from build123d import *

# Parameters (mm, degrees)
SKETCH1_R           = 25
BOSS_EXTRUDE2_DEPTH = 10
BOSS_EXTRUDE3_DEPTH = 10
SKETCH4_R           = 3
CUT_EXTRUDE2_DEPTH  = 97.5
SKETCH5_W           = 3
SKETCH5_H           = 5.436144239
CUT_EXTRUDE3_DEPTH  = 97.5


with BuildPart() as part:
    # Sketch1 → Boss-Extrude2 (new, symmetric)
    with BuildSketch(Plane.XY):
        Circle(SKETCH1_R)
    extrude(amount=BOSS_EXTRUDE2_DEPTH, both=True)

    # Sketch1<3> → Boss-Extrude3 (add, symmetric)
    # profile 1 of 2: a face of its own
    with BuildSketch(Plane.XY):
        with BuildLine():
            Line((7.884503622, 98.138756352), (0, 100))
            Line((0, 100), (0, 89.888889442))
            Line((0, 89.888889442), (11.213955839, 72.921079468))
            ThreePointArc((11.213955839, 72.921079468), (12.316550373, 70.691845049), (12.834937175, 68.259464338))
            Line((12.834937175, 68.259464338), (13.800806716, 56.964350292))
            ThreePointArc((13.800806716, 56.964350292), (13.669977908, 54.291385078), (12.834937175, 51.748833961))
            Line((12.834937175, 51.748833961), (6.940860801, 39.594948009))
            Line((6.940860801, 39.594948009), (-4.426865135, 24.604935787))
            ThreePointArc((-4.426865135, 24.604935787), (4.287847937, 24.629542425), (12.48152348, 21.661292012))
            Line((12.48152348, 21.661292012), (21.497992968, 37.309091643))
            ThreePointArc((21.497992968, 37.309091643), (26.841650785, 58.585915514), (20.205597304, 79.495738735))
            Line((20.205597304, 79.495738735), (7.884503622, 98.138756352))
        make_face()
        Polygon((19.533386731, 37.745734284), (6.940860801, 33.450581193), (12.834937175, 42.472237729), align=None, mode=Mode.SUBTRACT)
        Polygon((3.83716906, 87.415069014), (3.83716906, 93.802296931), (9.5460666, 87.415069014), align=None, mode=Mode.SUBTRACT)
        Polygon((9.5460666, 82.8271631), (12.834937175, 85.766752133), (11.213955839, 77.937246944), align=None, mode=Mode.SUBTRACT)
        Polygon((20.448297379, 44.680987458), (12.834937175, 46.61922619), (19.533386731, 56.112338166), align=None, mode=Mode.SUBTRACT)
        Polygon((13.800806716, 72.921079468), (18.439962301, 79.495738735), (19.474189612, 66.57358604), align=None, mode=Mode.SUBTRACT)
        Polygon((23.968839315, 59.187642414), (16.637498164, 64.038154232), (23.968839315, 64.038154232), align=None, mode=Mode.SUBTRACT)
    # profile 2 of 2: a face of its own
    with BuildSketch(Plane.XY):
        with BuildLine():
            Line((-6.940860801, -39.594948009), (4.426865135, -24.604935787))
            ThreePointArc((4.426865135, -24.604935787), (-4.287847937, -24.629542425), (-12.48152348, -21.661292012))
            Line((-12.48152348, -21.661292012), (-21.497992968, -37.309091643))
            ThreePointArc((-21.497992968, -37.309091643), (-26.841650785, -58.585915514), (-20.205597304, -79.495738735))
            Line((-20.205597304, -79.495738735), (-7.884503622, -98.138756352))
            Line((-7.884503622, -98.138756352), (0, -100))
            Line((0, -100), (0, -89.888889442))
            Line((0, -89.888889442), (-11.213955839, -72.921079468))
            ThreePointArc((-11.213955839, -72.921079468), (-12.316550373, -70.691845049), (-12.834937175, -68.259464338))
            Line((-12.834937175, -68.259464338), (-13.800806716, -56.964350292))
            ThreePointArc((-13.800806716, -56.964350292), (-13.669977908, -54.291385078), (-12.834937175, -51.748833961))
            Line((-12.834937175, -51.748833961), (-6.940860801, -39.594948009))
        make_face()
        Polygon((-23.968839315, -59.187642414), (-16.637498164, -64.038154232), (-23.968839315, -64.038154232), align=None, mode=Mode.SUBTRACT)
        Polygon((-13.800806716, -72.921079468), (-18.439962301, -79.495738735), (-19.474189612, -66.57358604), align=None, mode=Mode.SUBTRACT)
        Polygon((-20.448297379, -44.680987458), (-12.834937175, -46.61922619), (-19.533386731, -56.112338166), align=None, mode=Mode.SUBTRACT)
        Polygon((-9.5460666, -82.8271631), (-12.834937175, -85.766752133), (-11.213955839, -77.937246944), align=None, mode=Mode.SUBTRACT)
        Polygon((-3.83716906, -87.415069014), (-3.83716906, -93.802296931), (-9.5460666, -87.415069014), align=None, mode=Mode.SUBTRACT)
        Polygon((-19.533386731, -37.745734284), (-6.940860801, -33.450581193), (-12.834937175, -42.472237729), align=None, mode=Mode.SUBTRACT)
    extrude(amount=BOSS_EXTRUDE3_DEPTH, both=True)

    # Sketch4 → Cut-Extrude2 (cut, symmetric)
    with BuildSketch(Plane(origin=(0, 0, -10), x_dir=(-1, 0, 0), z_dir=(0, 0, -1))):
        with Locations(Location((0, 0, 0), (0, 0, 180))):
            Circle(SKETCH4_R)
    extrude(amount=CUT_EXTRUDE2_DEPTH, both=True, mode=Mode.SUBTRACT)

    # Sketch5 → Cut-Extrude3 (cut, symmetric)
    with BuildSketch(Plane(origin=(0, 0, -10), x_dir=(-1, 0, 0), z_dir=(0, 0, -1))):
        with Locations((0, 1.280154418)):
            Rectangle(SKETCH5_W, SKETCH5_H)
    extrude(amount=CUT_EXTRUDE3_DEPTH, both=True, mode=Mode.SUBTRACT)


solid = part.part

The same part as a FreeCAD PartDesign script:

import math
import FreeCAD as App
import Part
import Sketcher

V = App.Vector


def add_polygon(sketch, points):
    """Adds a closed chain of lines whose ends are joined by coincident constraints."""
    first, n = sketch.GeometryCount, len(points)
    for a, b in zip(points, points[1:] + points[:1]):
        sketch.addGeometry(Part.LineSegment(App.Vector(*a, 0), App.Vector(*b, 0)), False)
    for i in range(n):
        sketch.addConstraint(Sketcher.Constraint("Coincident", first + i, 2, first + (i + 1) % n, 1))

doc = App.newDocument("Part")
params = doc.addObject("Spreadsheet::Sheet", "Params")
for row, (alias, value) in enumerate([
    ("sketch1_diameter", "50 mm"),
    ("pad1_length", "20 mm"),
    ("sketch2_radius", "10 mm"),
    ("sketch2_radius2", "25 mm"),
    ("pad2_length", "20 mm"),
    ("sketch3_diameter", "6 mm"),
    ("pocket1_length", "195 mm"),
    ("sketch4_width", "3 mm"),
    ("pocket2_length", "195 mm"),
], start=1):
    params.set(f"A{row}", alias)
    params.set(f"B{row}", "=" + value)
    params.setAlias(f"B{row}", alias)

body = doc.addObject("PartDesign::Body", "Body")

sketch1 = doc.addObject("Sketcher::SketchObject", "Sketch")
body.addObject(sketch1)
sketch1.AttachmentSupport = (doc.XY_Plane, [""])
sketch1.MapMode = "FlatFace"
sketch1.addGeometry(Part.Circle(V(0, 0, 0), V(0, 0, 1), 25), False)
sketch1.addConstraint([
    Sketcher.Constraint("Coincident", 0, 3, -1, 1),
    Sketcher.Constraint("Diameter", 0, 50.0),
])
sketch1.setExpression("Constraints[1]", "Params.sketch1_diameter")
pad1 = doc.addObject("PartDesign::Pad", "Pad")
body.addObject(pad1)
pad1.Profile = sketch1
pad1.setExpression("Length", "Params.pad1_length")
pad1.Midplane = True

sketch2 = doc.addObject("Sketcher::SketchObject", "Sketch001")
body.addObject(sketch2)
sketch2.AttachmentSupport = (doc.XY_Plane, [""])
sketch2.MapMode = "FlatFace"
sketch2.addGeometry(Part.LineSegment(V(7.9, 98.1, 0), V(0, 100, 0)), False)
sketch2.addGeometry(Part.LineSegment(V(0, 100, 0), V(0, 89.9, 0)), False)
sketch2.addGeometry(Part.LineSegment(V(0, 89.9, 0), V(11.2, 72.9, 0)), False)
sketch2.addGeometry(Part.ArcOfCircle(Part.Circle(V(2.9, 67.4, 0), V(0, 0, 1), 10), math.radians(5), math.radians(33)), False)
sketch2.addGeometry(Part.LineSegment(V(12.8, 68.3, 0), V(13.8, 57, 0)), False)
sketch2.addGeometry(Part.ArcOfCircle(Part.Circle(V(3.8, 56.1, 0), V(0, 0, 1), 10), math.radians(-26), math.radians(5)), False)
sketch2.addGeometry(Part.LineSegment(V(12.8, 51.7, 0), V(6.9, 39.6, 0)), False)
sketch2.addGeometry(Part.LineSegment(V(6.9, 39.6, 0), V(-4.4, 24.6, 0)), False)
sketch2.addGeometry(Part.ArcOfCircle(Part.Circle(V(0, 0, 0), V(0, 0, 1), 25), math.radians(60), math.radians(100)), False)
sketch2.addGeometry(Part.LineSegment(V(12.5, 21.7, 0), V(21.5, 37.3, 0)), False)
sketch2.addGeometry(Part.ArcOfCircle(Part.Circle(V(-13.3, 57.4, 0), V(0, 0, 1), 40.2), math.radians(-30), math.radians(33)), False)
sketch2.addGeometry(Part.LineSegment(V(20.2, 79.5, 0), V(7.9, 98.1, 0)), False)
add_polygon(sketch2, [(12.8, 42.5), (19.5, 37.7), (6.9, 33.5)])
add_polygon(sketch2, [(19.5, 56.1), (20.4, 44.7), (12.8, 46.6)])
add_polygon(sketch2, [(24, 64), (24, 59.2), (16.6, 64)])
add_polygon(sketch2, [(9.5, 87.4), (3.8, 87.4), (3.8, 93.8)])
add_polygon(sketch2, [(11.2, 77.9), (9.5, 82.8), (12.8, 85.8)])
add_polygon(sketch2, [(19.5, 66.6), (13.8, 72.9), (18.4, 79.5)])
sketch2.addGeometry(Part.LineSegment(V(-6.9, -39.6, 0), V(4.4, -24.6, 0)), False)
sketch2.addGeometry(Part.ArcOfCircle(Part.Circle(V(0, 0, 0), V(0, 0, 1), 25), math.radians(-120), math.radians(-80)), False)
sketch2.addGeometry(Part.LineSegment(V(-12.5, -21.7, 0), V(-21.5, -37.3, 0)), False)
sketch2.addGeometry(Part.ArcOfCircle(Part.Circle(V(13.3, -57.4, 0), V(0, 0, 1), 40.2), math.radians(150), math.radians(213)), False)
sketch2.addGeometry(Part.LineSegment(V(-20.2, -79.5, 0), V(-7.9, -98.1, 0)), False)
sketch2.addGeometry(Part.LineSegment(V(-7.9, -98.1, 0), V(0, -100, 0)), False)
sketch2.addGeometry(Part.LineSegment(V(0, -100, 0), V(0, -89.9, 0)), False)
sketch2.addGeometry(Part.LineSegment(V(0, -89.9, 0), V(-11.2, -72.9, 0)), False)
sketch2.addGeometry(Part.ArcOfCircle(Part.Circle(V(-2.9, -67.4, 0), V(0, 0, 1), 10), math.radians(-175), math.radians(-147)), False)
sketch2.addGeometry(Part.LineSegment(V(-12.8, -68.3, 0), V(-13.8, -57, 0)), False)
sketch2.addGeometry(Part.ArcOfCircle(Part.Circle(V(-3.8, -56.1, 0), V(0, 0, 1), 10), math.radians(154), math.radians(185)), False)
sketch2.addGeometry(Part.LineSegment(V(-12.8, -51.7, 0), V(-6.9, -39.6, 0)), False)
add_polygon(sketch2, [(-19.5, -66.6), (-13.8, -72.9), (-18.4, -79.5)])
add_polygon(sketch2, [(-11.2, -77.9), (-9.5, -82.8), (-12.8, -85.8)])
add_polygon(sketch2, [(-9.5, -87.4), (-3.8, -87.4), (-3.8, -93.8)])
add_polygon(sketch2, [(-24, -64), (-24, -59.2), (-16.6, -64)])
add_polygon(sketch2, [(-19.5, -56.1), (-20.4, -44.7), (-12.8, -46.6)])
add_polygon(sketch2, [(-12.8, -42.5), (-19.5, -37.7), (-6.9, -33.5)])
sketch2.addConstraint([
    Sketcher.Constraint("Coincident", 0, 2, 1, 1),
    Sketcher.Constraint("Coincident", 1, 2, 2, 1),
    Sketcher.Constraint("Tangent", 2, 2, 3, 2),
    Sketcher.Constraint("Tangent", 3, 1, 4, 1),
    Sketcher.Constraint("Tangent", 4, 2, 5, 2),
    Sketcher.Constraint("Tangent", 5, 1, 6, 1),
    Sketcher.Constraint("Coincident", 6, 2, 7, 1),
    Sketcher.Constraint("Coincident", 7, 2, 8, 2),
    Sketcher.Constraint("Coincident", 8, 1, 9, 1),
    Sketcher.Constraint("Tangent", 9, 2, 10, 1),
    Sketcher.Constraint("Tangent", 10, 2, 11, 1),
    Sketcher.Constraint("Coincident", 11, 2, 0, 1),
    Sketcher.Constraint("Coincident", 30, 2, 31, 2),
    Sketcher.Constraint("Coincident", 31, 1, 32, 1),
    Sketcher.Constraint("Tangent", 32, 2, 33, 1),
    Sketcher.Constraint("Tangent", 33, 2, 34, 1),
    Sketcher.Constraint("Coincident", 34, 2, 35, 1),
    Sketcher.Constraint("Coincident", 35, 2, 36, 1),
    Sketcher.Constraint("Coincident", 36, 2, 37, 1),
    Sketcher.Constraint("Tangent", 37, 2, 38, 2),
    Sketcher.Constraint("Tangent", 38, 1, 39, 1),
    Sketcher.Constraint("Tangent", 39, 2, 40, 2),
    Sketcher.Constraint("Tangent", 40, 1, 41, 1),
    Sketcher.Constraint("Coincident", 41, 2, 30, 1),
    Sketcher.Constraint("Vertical", 1),
    Sketcher.Constraint("Vertical", 18),
    Sketcher.Constraint("Horizontal", 20),
    Sketcher.Constraint("Horizontal", 21),
    Sketcher.Constraint("Vertical", 22),
    Sketcher.Constraint("Vertical", 36),
    Sketcher.Constraint("Horizontal", 48),
    Sketcher.Constraint("Vertical", 49),
    Sketcher.Constraint("Vertical", 51),
    Sketcher.Constraint("Horizontal", 53),
    Sketcher.Constraint("Coincident", 8, 3, -1, 1),
    Sketcher.Constraint("Coincident", 31, 3, -1, 1),
    Sketcher.Constraint("Equal", 3, 5),
    Sketcher.Constraint("Equal", 8, 31),
    Sketcher.Constraint("Equal", 10, 33),
    Sketcher.Constraint("Equal", 5, 38),
    Sketcher.Constraint("Equal", 38, 40),
    Sketcher.Constraint("Symmetric", 10, 3, 33, 3, -1, 1),
    Sketcher.Constraint("Symmetric", 3, 3, 38, 3, -1, 1),
    Sketcher.Constraint("Symmetric", 5, 3, 40, 3, -1, 1),
    Sketcher.Constraint("Symmetric", 11, 2, 34, 2, -1, 1),
    Sketcher.Constraint("Symmetric", 0, 2, 35, 2, -1, 1),
    Sketcher.Constraint("Symmetric", 6, 2, 41, 2, -1, 1),
    Sketcher.Constraint("Symmetric", 27, 2, 42, 2, -1, 1),
    Sketcher.Constraint("Symmetric", 28, 2, 43, 2, -1, 1),
    Sketcher.Constraint("Symmetric", 29, 2, 44, 2, -1, 1),
    Sketcher.Constraint("Symmetric", 24, 2, 45, 2, -1, 1),
    Sketcher.Constraint("Symmetric", 25, 2, 46, 2, -1, 1),
    Sketcher.Constraint("Symmetric", 26, 2, 47, 2, -1, 1),
    Sketcher.Constraint("Symmetric", 21, 2, 48, 2, -1, 1),
    Sketcher.Constraint("Symmetric", 18, 2, 51, 2, -1, 1),
    Sketcher.Constraint("Symmetric", 19, 2, 52, 2, -1, 1),
    Sketcher.Constraint("Symmetric", 15, 2, 54, 2, -1, 1),
    Sketcher.Constraint("Symmetric", 16, 2, 55, 2, -1, 1),
    Sketcher.Constraint("Symmetric", 17, 2, 56, 2, -1, 1),
    Sketcher.Constraint("Symmetric", 12, 2, 57, 2, -1, 1),
    Sketcher.Constraint("Symmetric", 13, 2, 58, 2, -1, 1),
    Sketcher.Constraint("Symmetric", 14, 2, 59, 2, -1, 1),
    Sketcher.Constraint("Symmetric", 1, 2, 36, 2, -1),
    Sketcher.Constraint("Parallel", 2, 11),
    Sketcher.Constraint("Perpendicular", 12, 17),
    Sketcher.Constraint("Perpendicular", 13, 24),
    Sketcher.Constraint("Perpendicular", 23, 25),
    Sketcher.Constraint("Perpendicular", 25, 27),
    Sketcher.Constraint("Parallel", 17, 28),
    Sketcher.Constraint("Parallel", 15, 29),
    Sketcher.Constraint("Parallel", 7, 30),
    Sketcher.Constraint("Parallel", 9, 32),
    Sketcher.Constraint("Perpendicular", 46, 50),
    Sketcher.Constraint("Horizontal", 5, 3, 17, 2),
    Sketcher.Constraint("Horizontal", 2, 2, 27, 2),
    Sketcher.Constraint("Horizontal", 10, 2, 28, 2),
    Sketcher.Constraint("Vertical", 3, 1, 5, 1),
    Sketcher.Constraint("Vertical", 6, 2, 13, 2),
    Sketcher.Constraint("Vertical", 5, 1, 14, 2),
    Sketcher.Constraint("Vertical", 14, 2, 16, 2),
    Sketcher.Constraint("Vertical", 12, 2, 17, 2),
    Sketcher.Constraint("Vertical", 5, 3, 21, 2),
    Sketcher.Constraint("Vertical", 23, 2, 24, 2),
    Sketcher.Constraint("Vertical", 16, 2, 25, 2),
    Sketcher.Constraint("Vertical", 2, 2, 26, 2),
    Sketcher.Constraint("Vertical", 4, 2, 27, 2),
    Sketcher.Constraint("Vertical", 45, 2, 50, 2),
    Sketcher.Constraint("Radius", 3, 10.0),
    Sketcher.Constraint("Radius", 8, 25.0),
    Sketcher.Constraint("DistanceY", -1, 1, 0, 2, 100.0),
    Sketcher.Constraint("Radius", 10, 40.153909),
    Sketcher.Constraint("Distance", 27, 8.513398),
    Sketcher.Constraint("DistanceX", 20, 1, 20, 2, 7.331341),
    Sketcher.Constraint("DistanceY", 1, 2, 1, 1, 10.111111),
    Sketcher.Constraint("DistanceY", 18, 2, 18, 1, 4.850512),
    Sketcher.Constraint("DistanceX", -1, 1, 3, 3, 2.8713),
    Sketcher.Constraint("DistanceX", -1, 1, 19, 2, 16.637498),
    Sketcher.Constraint("Distance", 0, 8.101211),
    Sketcher.Constraint("Distance", 11, 22.346621),
    Sketcher.Constraint("Distance", 13, 13.304888),
    Sketcher.Constraint("Distance", 16, 7.856209),
    Sketcher.Constraint("Distance", 17, 11.618451),
    Sketcher.Constraint("Distance", 23, 8.566691),
    Sketcher.Constraint("Distance", 24, 5.16654),
    Sketcher.Constraint("Distance", 28, 8.046609),
    Sketcher.Constraint("DistanceX", 21, 2, 21, 1, 5.708898),
    Sketcher.Constraint("DistanceX", -1, 1, 5, 3, 3.837169),
    Sketcher.Constraint("DistanceY", -1, 1, 5, 3, 56.112338),
    Sketcher.Constraint("DistanceX", 10, 3, -1, 1, 13.293429),
    Sketcher.Constraint("DistanceY", -1, 1, 10, 3, 57.35637),
    Sketcher.Constraint("DistanceY", -1, 1, 9, 2, 37.309092),
    Sketcher.Constraint("DistanceY", -1, 1, 13, 2, 33.450581),
    Sketcher.Constraint("DistanceY", -1, 1, 21, 2, 87.415069),
    Sketcher.Constraint("Distance", 7, 18.812912),
    Sketcher.Constraint("DistanceY", -1, 1, 18, 2, 59.187642),
    Sketcher.Constraint("DistanceY", -1, 1, 24, 2, 82.827163),
])
sketch2.setExpression("Constraints[123]", "Params.sketch2_radius")
sketch2.setExpression("Constraints[124]", "Params.sketch2_radius2")
pad2 = doc.addObject("PartDesign::Pad", "Pad001")
body.addObject(pad2)
pad2.Profile = sketch2
pad2.setExpression("Length", "Params.pad2_length")
pad2.Midplane = True

sketch3 = doc.addObject("Sketcher::SketchObject", "Sketch002")
body.addObject(sketch3)
sketch3.AttachmentSupport = (doc.XY_Plane, [""])
sketch3.MapMode = "FlatFace"
sketch3.AttachmentOffset = App.Placement(V(0, 0, -10), App.Rotation())
sketch3.addGeometry(Part.Circle(V(0, 0, 0), V(0, 0, 1), 3), False)
sketch3.addConstraint([
    Sketcher.Constraint("Coincident", 0, 3, -1, 1),
    Sketcher.Constraint("Diameter", 0, 6.0),
])
sketch3.setExpression("Constraints[1]", "Params.sketch3_diameter")
pocket1 = doc.addObject("PartDesign::Pocket", "Pocket")
body.addObject(pocket1)
pocket1.Profile = sketch3
pocket1.setExpression("Length", "Params.pocket1_length")
pocket1.Midplane = True

sketch4 = doc.addObject("Sketcher::SketchObject", "Sketch003")
body.addObject(sketch4)
sketch4.AttachmentSupport = (doc.XY_Plane, [""])
sketch4.MapMode = "FlatFace"
sketch4.AttachmentOffset = App.Placement(V(0, 0, -10), App.Rotation())
add_polygon(sketch4, [(1.5, 4), (1.5, -1.4), (-1.5, -1.4), (-1.5, 4)])
sketch4.addConstraint([
    Sketcher.Constraint("Vertical", 0),
    Sketcher.Constraint("Horizontal", 1),
    Sketcher.Constraint("Vertical", 2),
    Sketcher.Constraint("Horizontal", 3),
    Sketcher.Constraint("DistanceX", 1, 2, 1, 1, 3.0),
    Sketcher.Constraint("DistanceX", -1, 1, 0, 2, 1.5),
    Sketcher.Constraint("DistanceY", 0, 2, 0, 1, 5.436144),
    Sketcher.Constraint("DistanceY", 0, 2, -1, 1, 1.437918),
])
sketch4.setExpression("Constraints[8]", "Params.sketch4_width")
pocket2 = doc.addObject("PartDesign::Pocket", "Pocket001")
body.addObject(pocket2)
pocket2.Profile = sketch4
pocket2.setExpression("Length", "Params.pocket2_length")
pocket2.Midplane = True

doc.recompute()
